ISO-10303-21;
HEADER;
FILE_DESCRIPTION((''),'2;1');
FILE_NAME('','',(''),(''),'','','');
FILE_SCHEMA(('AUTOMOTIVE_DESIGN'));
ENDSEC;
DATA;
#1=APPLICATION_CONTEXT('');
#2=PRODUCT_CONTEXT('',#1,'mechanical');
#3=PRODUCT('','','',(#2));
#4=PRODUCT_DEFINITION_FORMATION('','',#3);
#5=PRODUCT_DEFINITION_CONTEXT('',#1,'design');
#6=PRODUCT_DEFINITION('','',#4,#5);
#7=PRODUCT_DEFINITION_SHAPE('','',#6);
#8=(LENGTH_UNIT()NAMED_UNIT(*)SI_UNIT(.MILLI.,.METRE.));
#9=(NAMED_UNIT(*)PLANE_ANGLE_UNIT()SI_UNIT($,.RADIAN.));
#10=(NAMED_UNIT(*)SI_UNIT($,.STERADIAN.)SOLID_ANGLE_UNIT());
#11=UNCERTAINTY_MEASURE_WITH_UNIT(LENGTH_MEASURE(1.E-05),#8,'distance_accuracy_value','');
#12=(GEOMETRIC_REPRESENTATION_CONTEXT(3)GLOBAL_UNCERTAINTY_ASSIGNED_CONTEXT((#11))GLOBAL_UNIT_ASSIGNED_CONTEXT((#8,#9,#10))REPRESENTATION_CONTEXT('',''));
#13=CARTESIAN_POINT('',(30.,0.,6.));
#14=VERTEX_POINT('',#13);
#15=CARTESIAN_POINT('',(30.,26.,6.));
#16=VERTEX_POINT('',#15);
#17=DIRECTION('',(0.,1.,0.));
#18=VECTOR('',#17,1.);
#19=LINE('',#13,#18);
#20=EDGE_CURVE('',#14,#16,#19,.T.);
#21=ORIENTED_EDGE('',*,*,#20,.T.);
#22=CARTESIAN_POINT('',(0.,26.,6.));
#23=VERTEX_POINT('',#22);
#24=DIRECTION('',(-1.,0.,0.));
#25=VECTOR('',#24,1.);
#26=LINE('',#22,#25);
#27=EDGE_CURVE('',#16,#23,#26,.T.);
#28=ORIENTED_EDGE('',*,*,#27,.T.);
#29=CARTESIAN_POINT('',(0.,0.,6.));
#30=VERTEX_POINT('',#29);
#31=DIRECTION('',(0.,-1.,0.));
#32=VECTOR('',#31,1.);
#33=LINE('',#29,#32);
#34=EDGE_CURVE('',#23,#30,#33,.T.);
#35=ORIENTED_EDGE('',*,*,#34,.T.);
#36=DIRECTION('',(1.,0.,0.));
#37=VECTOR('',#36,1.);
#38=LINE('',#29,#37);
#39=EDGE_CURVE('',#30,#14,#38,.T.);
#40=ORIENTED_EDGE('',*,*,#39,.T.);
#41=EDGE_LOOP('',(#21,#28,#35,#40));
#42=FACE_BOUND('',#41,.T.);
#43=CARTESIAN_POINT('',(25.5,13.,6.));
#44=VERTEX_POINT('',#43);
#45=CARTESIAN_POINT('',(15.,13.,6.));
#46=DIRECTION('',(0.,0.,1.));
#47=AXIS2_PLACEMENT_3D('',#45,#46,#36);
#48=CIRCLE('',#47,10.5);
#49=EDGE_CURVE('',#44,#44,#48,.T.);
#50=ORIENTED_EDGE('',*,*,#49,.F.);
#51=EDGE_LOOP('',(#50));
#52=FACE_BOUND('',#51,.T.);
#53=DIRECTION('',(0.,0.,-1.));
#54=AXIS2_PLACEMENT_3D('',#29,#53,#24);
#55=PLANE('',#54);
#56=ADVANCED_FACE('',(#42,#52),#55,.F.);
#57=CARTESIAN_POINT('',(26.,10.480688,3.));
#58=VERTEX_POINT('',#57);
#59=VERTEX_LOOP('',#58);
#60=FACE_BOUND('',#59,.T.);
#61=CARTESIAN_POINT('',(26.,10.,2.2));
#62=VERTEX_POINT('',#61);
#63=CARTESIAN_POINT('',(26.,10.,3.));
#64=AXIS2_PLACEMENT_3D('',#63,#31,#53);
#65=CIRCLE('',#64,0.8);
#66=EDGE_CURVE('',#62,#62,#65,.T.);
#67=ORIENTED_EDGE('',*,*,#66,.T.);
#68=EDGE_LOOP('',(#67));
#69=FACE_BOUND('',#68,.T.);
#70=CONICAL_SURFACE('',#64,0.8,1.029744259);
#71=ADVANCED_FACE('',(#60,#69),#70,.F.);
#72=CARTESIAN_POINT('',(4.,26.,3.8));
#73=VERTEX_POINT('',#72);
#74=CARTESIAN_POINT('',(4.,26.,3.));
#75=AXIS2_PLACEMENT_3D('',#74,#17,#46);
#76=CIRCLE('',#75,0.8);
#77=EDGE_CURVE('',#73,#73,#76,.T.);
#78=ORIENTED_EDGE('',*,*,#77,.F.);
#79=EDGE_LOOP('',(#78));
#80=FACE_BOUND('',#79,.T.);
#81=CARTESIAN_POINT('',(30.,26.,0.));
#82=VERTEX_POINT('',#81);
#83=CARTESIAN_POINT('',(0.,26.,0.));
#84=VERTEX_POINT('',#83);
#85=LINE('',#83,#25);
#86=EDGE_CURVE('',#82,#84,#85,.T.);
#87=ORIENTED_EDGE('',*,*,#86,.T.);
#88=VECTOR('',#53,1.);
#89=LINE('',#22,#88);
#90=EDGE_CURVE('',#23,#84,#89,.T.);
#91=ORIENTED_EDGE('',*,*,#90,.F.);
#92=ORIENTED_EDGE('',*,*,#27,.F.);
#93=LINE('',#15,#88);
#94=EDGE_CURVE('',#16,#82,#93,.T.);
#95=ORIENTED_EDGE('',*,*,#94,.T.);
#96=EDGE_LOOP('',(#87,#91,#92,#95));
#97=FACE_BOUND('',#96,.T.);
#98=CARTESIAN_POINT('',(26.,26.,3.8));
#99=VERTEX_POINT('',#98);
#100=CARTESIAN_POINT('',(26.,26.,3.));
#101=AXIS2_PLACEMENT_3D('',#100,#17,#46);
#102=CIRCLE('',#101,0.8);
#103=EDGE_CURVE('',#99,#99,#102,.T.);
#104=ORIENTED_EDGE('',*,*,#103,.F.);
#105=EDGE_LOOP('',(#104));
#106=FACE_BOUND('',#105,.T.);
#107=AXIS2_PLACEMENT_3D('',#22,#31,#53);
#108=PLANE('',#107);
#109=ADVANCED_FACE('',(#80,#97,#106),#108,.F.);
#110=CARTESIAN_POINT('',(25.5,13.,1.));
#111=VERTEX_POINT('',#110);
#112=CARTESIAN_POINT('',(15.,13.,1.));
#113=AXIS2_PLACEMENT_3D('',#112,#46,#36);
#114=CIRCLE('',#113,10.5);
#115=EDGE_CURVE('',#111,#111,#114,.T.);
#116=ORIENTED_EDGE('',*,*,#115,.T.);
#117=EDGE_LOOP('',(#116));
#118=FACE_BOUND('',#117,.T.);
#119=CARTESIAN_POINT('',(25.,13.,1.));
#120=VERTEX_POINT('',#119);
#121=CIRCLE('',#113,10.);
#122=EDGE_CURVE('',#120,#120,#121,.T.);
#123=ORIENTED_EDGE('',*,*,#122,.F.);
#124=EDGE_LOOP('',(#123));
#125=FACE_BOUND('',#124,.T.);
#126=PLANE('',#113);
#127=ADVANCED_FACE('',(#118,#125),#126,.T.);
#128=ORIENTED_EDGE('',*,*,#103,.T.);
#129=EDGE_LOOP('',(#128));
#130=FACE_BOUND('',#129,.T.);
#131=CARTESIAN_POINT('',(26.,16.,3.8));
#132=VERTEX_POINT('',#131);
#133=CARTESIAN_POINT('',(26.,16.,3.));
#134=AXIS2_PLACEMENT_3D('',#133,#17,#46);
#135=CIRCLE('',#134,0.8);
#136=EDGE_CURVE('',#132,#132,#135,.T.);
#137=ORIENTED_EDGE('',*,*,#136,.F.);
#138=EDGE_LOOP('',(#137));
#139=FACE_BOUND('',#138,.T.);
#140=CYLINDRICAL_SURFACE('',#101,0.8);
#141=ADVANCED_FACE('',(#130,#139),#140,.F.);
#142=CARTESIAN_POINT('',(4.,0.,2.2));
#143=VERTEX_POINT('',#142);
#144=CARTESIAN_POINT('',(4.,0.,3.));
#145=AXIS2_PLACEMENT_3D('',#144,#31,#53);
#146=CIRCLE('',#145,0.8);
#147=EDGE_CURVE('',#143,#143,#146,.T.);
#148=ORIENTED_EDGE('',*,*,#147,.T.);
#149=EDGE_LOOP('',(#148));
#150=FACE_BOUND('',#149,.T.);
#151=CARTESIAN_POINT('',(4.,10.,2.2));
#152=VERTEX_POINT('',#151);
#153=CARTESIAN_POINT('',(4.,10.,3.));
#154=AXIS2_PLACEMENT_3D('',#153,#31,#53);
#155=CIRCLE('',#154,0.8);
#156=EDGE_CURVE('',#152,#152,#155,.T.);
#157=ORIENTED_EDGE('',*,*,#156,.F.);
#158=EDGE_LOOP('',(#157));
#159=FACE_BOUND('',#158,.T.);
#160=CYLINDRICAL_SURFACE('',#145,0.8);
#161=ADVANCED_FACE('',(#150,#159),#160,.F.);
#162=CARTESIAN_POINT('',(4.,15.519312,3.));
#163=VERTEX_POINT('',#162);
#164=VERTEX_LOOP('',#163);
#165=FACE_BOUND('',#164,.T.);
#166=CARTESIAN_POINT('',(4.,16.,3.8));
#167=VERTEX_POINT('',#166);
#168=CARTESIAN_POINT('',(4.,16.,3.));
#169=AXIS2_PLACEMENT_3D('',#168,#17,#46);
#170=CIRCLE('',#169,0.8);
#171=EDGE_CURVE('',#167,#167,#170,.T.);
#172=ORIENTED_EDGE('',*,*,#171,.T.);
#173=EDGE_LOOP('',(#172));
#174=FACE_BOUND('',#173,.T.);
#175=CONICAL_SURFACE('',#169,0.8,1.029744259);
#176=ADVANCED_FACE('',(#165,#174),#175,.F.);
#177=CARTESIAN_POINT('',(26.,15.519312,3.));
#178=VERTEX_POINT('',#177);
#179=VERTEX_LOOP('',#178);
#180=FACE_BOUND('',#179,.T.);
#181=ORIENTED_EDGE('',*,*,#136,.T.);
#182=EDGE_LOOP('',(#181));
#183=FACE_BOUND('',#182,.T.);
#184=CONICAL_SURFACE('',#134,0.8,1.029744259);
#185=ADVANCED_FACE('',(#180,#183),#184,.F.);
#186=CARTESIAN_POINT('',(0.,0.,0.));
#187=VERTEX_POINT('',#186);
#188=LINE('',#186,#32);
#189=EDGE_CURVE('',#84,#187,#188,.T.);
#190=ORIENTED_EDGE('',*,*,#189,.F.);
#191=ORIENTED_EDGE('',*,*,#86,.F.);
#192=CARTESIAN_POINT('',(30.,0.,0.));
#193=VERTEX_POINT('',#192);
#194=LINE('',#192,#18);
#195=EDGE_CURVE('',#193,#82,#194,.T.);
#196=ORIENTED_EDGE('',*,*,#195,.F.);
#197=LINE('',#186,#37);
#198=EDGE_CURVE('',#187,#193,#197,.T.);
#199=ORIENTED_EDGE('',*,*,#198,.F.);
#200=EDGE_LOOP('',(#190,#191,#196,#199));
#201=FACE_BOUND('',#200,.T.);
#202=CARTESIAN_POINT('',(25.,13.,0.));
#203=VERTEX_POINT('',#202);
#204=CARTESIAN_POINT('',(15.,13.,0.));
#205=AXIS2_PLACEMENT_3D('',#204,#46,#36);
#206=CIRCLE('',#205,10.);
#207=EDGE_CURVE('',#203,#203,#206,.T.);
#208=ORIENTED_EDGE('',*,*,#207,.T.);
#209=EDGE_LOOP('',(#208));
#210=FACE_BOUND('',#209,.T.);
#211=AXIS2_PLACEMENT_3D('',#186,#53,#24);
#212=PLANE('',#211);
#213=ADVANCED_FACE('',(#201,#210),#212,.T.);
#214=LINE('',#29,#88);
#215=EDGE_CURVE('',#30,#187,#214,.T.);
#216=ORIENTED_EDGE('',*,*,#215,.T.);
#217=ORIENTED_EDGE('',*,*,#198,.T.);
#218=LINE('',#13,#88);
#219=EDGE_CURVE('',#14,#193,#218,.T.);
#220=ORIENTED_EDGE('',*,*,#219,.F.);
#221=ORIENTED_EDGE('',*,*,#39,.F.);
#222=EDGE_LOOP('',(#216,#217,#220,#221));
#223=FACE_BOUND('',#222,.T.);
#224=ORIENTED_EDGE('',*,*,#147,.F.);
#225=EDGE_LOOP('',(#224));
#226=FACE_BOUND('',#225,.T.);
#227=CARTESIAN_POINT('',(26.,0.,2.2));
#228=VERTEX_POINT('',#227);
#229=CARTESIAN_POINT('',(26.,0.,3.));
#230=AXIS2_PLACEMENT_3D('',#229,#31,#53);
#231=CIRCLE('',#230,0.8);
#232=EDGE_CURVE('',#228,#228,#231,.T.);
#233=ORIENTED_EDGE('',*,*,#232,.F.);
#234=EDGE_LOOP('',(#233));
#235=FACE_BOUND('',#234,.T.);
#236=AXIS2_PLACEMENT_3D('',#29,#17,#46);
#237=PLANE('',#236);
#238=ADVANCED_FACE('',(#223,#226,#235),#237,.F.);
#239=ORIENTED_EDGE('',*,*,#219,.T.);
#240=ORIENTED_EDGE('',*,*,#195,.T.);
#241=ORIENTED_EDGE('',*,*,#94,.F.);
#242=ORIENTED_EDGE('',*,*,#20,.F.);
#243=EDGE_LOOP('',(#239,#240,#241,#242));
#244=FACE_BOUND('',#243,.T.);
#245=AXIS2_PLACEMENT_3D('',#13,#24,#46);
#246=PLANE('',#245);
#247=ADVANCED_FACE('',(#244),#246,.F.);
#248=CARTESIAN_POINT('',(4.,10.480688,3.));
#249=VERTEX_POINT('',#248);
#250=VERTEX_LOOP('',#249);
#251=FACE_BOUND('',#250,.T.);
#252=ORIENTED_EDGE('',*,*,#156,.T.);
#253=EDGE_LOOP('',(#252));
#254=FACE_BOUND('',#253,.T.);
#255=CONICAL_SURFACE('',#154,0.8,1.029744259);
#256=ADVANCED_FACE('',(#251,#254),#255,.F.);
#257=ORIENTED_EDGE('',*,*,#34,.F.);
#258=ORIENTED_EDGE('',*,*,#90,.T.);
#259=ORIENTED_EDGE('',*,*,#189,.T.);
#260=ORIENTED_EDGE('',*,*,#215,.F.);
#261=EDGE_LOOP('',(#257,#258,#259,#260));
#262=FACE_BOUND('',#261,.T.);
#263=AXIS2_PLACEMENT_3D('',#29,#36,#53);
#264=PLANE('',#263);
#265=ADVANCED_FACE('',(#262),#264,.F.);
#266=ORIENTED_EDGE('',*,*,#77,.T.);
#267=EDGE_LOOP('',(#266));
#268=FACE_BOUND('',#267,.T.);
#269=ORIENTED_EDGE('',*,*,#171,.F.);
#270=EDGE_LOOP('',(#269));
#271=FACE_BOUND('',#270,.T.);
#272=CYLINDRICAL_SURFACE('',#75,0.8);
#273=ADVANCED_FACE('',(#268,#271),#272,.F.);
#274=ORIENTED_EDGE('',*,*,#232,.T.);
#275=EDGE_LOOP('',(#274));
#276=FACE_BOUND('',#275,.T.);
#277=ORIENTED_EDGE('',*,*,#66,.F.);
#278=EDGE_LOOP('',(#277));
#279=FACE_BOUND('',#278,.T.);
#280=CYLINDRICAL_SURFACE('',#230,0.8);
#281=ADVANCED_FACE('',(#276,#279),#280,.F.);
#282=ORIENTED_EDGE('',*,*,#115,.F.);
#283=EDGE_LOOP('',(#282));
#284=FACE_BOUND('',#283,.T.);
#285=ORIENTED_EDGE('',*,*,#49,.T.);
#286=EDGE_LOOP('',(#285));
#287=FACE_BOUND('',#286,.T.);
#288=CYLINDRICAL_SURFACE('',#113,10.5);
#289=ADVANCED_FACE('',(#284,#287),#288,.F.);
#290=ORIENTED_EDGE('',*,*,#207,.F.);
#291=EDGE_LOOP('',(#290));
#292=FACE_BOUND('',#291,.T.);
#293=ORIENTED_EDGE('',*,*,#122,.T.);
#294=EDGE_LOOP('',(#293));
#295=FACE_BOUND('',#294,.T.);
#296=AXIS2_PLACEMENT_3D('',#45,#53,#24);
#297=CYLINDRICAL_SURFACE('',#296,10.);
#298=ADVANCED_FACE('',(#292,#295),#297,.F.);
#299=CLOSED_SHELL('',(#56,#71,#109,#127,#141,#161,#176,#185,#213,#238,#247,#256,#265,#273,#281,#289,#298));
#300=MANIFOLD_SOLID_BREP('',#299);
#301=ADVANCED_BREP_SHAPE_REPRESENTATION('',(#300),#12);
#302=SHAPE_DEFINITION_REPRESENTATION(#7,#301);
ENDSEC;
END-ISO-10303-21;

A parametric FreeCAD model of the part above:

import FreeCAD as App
import Part
import Sketcher
from FreeCAD import Vector
Q = App.Units.Quantity

doc = App.newDocument("Part")
body = doc.addObject("PartDesign::Body", "Body")

# Sketch on XY plane
sketch1 = doc.addObject("Sketcher::SketchObject", "Sketch")
body.addObject(sketch1)
sketch1.AttachmentSupport = (doc.XY_Plane, [""])
sketch1.MapMode = "FlatFace"
sketch1.addGeometry(Part.LineSegment(Vector(0, 26, 0), Vector(0, 0, 0)), False)
sketch1.addGeometry(Part.LineSegment(Vector(0, 0, 0), Vector(30, 0, 0)), False)
sketch1.addGeometry(Part.LineSegment(Vector(30, 0, 0), Vector(30, 26, 0)), False)
sketch1.addGeometry(Part.LineSegment(Vector(30, 26, 0), Vector(0, 26, 0)), False)
sketch1.addGeometry(Part.Circle(Vector(15, 13, 0), Vector(0, 0, 1), 10), False)
sketch1.addConstraint(Sketcher.Constraint("Coincident", 0, 2, 1, 1))
sketch1.addConstraint(Sketcher.Constraint("Coincident", 1, 2, 2, 1))
sketch1.addConstraint(Sketcher.Constraint("Coincident", 2, 2, 3, 1))
sketch1.addConstraint(Sketcher.Constraint("Coincident", 3, 2, 0, 1))
sketch1.addConstraint(Sketcher.Constraint("Vertical", 0))
sketch1.addConstraint(Sketcher.Constraint("Horizontal", 1))
sketch1.addConstraint(Sketcher.Constraint("Vertical", 2))
sketch1.addConstraint(Sketcher.Constraint("Horizontal", 3))
sketch1.addConstraint(Sketcher.Constraint("Coincident", 0, 2, -1, 1))
sketch1.addConstraint(Sketcher.Constraint("Diameter", 4, Q("20 mm")))
sketch1.addConstraint(Sketcher.Constraint("DistanceX", 1, 1, 1, 2, Q("30 mm")))
sketch1.addConstraint(Sketcher.Constraint("DistanceY", 0, 2, 0, 1, Q("26 mm")))
sketch1.addConstraint(Sketcher.Constraint("DistanceX", -1, 1, 4, 3, Q("15 mm")))
sketch1.addConstraint(Sketcher.Constraint("DistanceY", -1, 1, 4, 3, Q("13 mm")))
pad1 = doc.addObject("PartDesign::Pad", "Pad")
body.addObject(pad1)
pad1.Profile = sketch1
pad1.Length = 6

# Sketch on XY plane
sketch2 = doc.addObject("Sketcher::SketchObject", "Sketch001")
body.addObject(sketch2)
sketch2.AttachmentSupport = (doc.XY_Plane, [""])
sketch2.MapMode = "FlatFace"
sketch2.AttachmentOffset = App.Placement(Vector(0, 0, 6), App.Rotation())
sketch2.addGeometry(Part.Circle(Vector(15, 13, 0), Vector(0, 0, 1), 10), False)
sketch2.addConstraint(Sketcher.Constraint("Diameter", 0, Q("21 mm")))
sketch2.addConstraint(Sketcher.Constraint("DistanceX", -1, 1, 0, 3, Q("15 mm")))
sketch2.addConstraint(Sketcher.Constraint("DistanceY", -1, 1, 0, 3, Q("13 mm")))
pocket1 = doc.addObject("PartDesign::Pocket", "Pocket")
body.addObject(pocket1)
pocket1.Profile = sketch2
pocket1.Length = 5

# Sketch on XZ plane
sketch3 = doc.addObject("Sketcher::SketchObject", "Sketch002")
body.addObject(sketch3)
sketch3.AttachmentSupport = (doc.XZ_Plane, [""])
sketch3.MapMode = "FlatFace"
sketch3.AttachmentOffset = App.Placement(Vector(0, 0, -26), App.Rotation())
sketch3.addGeometry(Part.Circle(Vector(4, 3, 0), Vector(0, 0, 1), 0.8), False)
sketch3.addGeometry(Part.Circle(Vector(26, 3, 0), Vector(0, 0, 1), 0.8), False)
sketch3.addConstraint(Sketcher.Constraint("Equal", 0, 1))
sketch3.addConstraint(Sketcher.Constraint("Horizontal", 0, 3, 1, 3))
sketch3.addConstraint(Sketcher.Constraint("Diameter", 0, Q("1.6 mm")))
sketch3.addConstraint(Sketcher.Constraint("DistanceX", -1, 1, 0, 3, Q("4 mm")))
sketch3.addConstraint(Sketcher.Constraint("DistanceY", -1, 1, 0, 3, Q("3 mm")))
sketch3.addConstraint(Sketcher.Constraint("DistanceX", -1, 1, 1, 3, Q("26 mm")))
doc.recompute()
hole = doc.addObject("PartDesign::Hole", "Hole")
body.addObject(hole)
hole.Profile = sketch3
hole.ThreadType = "None"
hole.Diameter = 1.6
hole.DepthType = "Dimension"
hole.Depth = 10
hole.DrillPoint = "Angled"
hole.DrillPointAngle = 118
hole.Reversed = True

# Sketch on XZ plane
sketch4 = doc.addObject("Sketcher::SketchObject", "Sketch003")
body.addObject(sketch4)
sketch4.AttachmentSupport = (doc.XZ_Plane, [""])
sketch4.MapMode = "FlatFace"
sketch4.addGeometry(Part.Circle(Vector(26, 3, 0), Vector(0, 0, 1), 0.8), False)
sketch4.addGeometry(Part.Circle(Vector(4, 3, 0), Vector(0, 0, 1), 0.8), False)
sketch4.addConstraint(Sketcher.Constraint("Equal", 0, 1))
sketch4.addConstraint(Sketcher.Constraint("Horizontal", 0, 3, 1, 3))
sketch4.addConstraint(Sketcher.Constraint("Diameter", 0, Q("1.6 mm")))
sketch4.addConstraint(Sketcher.Constraint("DistanceX", -1, 1, 0, 3, Q("26 mm")))
sketch4.addConstraint(Sketcher.Constraint("DistanceY", -1, 1, 0, 3, Q("3 mm")))
sketch4.addConstraint(Sketcher.Constraint("DistanceX", -1, 1, 1, 3, Q("4 mm")))
doc.recompute()
hole2 = doc.addObject("PartDesign::Hole", "Hole001")
body.addObject(hole2)
hole2.Profile = sketch4
hole2.ThreadType = "None"
hole2.Diameter = 1.6
hole2.DepthType = "Dimension"
hole2.Depth = 10
hole2.DrillPoint = "Angled"
hole2.DrillPointAngle = 118

doc.recompute()
